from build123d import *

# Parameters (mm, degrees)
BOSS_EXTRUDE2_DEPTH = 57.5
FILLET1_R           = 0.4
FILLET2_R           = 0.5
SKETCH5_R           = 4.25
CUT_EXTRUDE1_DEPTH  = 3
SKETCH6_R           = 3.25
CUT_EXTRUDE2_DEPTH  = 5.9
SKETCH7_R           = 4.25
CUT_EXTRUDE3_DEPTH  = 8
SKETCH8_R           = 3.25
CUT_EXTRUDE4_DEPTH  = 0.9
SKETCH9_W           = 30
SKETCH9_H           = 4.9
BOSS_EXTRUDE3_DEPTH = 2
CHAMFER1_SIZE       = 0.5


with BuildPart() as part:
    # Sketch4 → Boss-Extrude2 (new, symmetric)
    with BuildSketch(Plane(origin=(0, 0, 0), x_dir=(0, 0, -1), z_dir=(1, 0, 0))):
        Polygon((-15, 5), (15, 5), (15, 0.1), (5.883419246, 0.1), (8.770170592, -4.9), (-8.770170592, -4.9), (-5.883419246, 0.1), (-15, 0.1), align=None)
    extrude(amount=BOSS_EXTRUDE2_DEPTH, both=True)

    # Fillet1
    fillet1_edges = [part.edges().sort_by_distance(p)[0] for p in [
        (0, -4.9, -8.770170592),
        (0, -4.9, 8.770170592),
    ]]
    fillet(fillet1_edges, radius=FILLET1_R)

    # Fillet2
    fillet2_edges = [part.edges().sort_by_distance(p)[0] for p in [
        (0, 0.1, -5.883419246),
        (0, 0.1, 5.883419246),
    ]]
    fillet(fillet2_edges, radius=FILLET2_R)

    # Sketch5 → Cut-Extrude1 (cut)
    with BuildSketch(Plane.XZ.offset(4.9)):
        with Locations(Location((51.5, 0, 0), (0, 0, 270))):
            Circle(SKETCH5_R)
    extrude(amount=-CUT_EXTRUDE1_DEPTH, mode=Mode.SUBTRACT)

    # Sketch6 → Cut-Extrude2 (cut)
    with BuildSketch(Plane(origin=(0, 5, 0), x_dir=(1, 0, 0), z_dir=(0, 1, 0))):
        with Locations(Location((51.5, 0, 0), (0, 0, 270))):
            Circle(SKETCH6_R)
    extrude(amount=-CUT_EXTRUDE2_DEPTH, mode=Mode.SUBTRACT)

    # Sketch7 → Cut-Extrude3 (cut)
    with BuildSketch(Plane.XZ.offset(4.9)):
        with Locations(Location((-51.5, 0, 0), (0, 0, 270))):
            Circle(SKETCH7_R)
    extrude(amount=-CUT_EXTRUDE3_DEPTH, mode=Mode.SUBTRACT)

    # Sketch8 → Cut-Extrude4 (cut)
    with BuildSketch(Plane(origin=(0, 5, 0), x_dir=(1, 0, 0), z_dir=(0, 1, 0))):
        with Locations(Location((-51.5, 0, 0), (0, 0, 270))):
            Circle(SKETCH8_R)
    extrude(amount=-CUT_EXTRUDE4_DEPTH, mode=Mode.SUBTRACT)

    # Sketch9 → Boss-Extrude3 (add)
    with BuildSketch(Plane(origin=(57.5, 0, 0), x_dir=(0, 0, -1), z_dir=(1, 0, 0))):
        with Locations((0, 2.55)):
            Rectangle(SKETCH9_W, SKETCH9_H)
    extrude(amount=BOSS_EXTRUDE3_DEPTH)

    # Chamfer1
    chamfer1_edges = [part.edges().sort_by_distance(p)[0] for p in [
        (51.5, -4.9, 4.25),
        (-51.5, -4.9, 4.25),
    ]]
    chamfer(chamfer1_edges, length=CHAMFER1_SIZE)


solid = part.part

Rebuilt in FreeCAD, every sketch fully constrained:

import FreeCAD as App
import Part
import Sketcher
from FreeCAD import Vector
Q = App.Units.Quantity


def edges_at(feature, points):
    """Names of the edges that pass closest to the given points."""
    edges = feature.Shape.Edges
    near = lambda p: min(range(len(edges)), key=lambda i: edges[i].distToShape(Part.Vertex(*p))[0])
    return sorted({f"Edge{near(p) + 1}" for p in points})


def add_polygon(sketch, points):
    """Adds a closed chain of lines whose ends are joined by coincident constraints."""
    first, n = sketch.GeometryCount, len(points)
    for a, b in zip(points, points[1:] + points[:1]):
        sketch.addGeometry(Part.LineSegment(App.Vector(*a, 0), App.Vector(*b, 0)), False)
    for i in range(n):
        sketch.addConstraint(Sketcher.Constraint("Coincident", first + i, 2, first + (i + 1) % n, 1))

doc = App.newDocument("Part")
body = doc.addObject("PartDesign::Body", "Body")

sketch1 = body.newObject("Sketcher::SketchObject", "Sketch")
sketch1.AttachmentSupport = (doc.getObject("YZ_Plane"), [""])
sketch1.MapMode = "FlatFace"
add_polygon(sketch1, [(5, -15), (5, 15), (0.1, 15), (0.1, 5.9), (-4.9, 8.8), (-4.9, -8.8), (0.1, -5.9), (0.1, -15)])
sketch1.addConstraint(Sketcher.Constraint("Vertical", 0))
sketch1.addConstraint(Sketcher.Constraint("Horizontal", 1))
sketch1.addConstraint(Sketcher.Constraint("Vertical", 2))
sketch1.addConstraint(Sketcher.Constraint("Vertical", 4))
sketch1.addConstraint(Sketcher.Constraint("Vertical", 6))
sketch1.addConstraint(Sketcher.Constraint("Horizontal", 7))
sketch1.addConstraint(Sketcher.Constraint("Symmetric", 2, 2, 5, 2, -1))
sketch1.addConstraint(Sketcher.Constraint("Equal", 2, 6))
sketch1.addConstraint(Sketcher.Constraint("Equal", 3, 5))
sketch1.addConstraint(Sketcher.Constraint("DistanceY", 0, 1, 0, 2, Q("30 mm")))
sketch1.addConstraint(Sketcher.Constraint("Angle", 3, Q("150 deg")))
sketch1.addConstraint(Sketcher.Constraint("DistanceX", 1, 2, 1, 1, Q("4.9 mm")))
sketch1.addConstraint(Sketcher.Constraint("DistanceX", -1, 1, 0, 2, Q("5 mm")))
sketch1.addConstraint(Sketcher.Constraint("DistanceX", 3, 2, 2, 2, Q("5 mm")))
sketch1.addConstraint(Sketcher.Constraint("DistanceY", 2, 2, 2, 1, Q("9.116581 mm")))
pad1 = body.newObject("PartDesign::Pad", "Pad")
pad1.Profile = sketch1
pad1.Length = 115
pad1.Midplane = True
doc.recompute()

fillet = body.newObject("PartDesign::Fillet", "Fillet")
fillet.Base = (pad1, edges_at(pad1, [(0, -4.9, -8.77), (0, -4.9, 8.77)]))
fillet.Radius = 0.4
doc.recompute()

fillet2 = body.newObject("PartDesign::Fillet", "Fillet001")
fillet2.Base = (fillet, edges_at(fillet, [(0, 0.1, -5.883), (0, 0.1, 5.883)]))
fillet2.Radius = 0.5

sketch2 = body.newObject("Sketcher::SketchObject", "Sketch001")
sketch2.AttachmentSupport = (doc.getObject("XZ_Plane"), [""])
sketch2.MapMode = "FlatFace"
sketch2.AttachmentOffset = App.Placement(Vector(0, 0, 4.9), App.Rotation())
sketch2.addGeometry(Part.Circle(Vector(51.5, 0, 0), Vector(0, 0, 1), 4.2), False)
sketch2.addConstraint(Sketcher.Constraint("PointOnObject", 0, 3, -1))
sketch2.addConstraint(Sketcher.Constraint("Diameter", 0, Q("8.5 mm")))
sketch2.addConstraint(Sketcher.Constraint("DistanceX", -1, 1, 0, 3, Q("51.5 mm")))
pocket1 = body.newObject("PartDesign::Pocket", "Pocket")
pocket1.Profile = sketch2
pocket1.Length = 3

sketch3 = body.newObject("Sketcher::SketchObject", "Sketch002")
sketch3.AttachmentSupport = (doc.getObject("XZ_Plane"), [""])
sketch3.MapMode = "FlatFace"
sketch3.AttachmentOffset = App.Placement(Vector(0, 0, -5), App.Rotation())
sketch3.addGeometry(Part.Circle(Vector(51.5, 0, 0), Vector(0, 0, 1), 3.2), False)
sketch3.addConstraint(Sketcher.Constraint("PointOnObject", 0, 3, -1))
sketch3.addConstraint(Sketcher.Constraint("Diameter", 0, Q("6.5 mm")))
sketch3.addConstraint(Sketcher.Constraint("DistanceX", -1, 1, 0, 3, Q("51.5 mm")))
pocket2 = body.newObject("PartDesign::Pocket", "Pocket001")
pocket2.Profile = sketch3
pocket2.Length = 5.9
pocket2.Reversed = True

sketch4 = body.newObject("Sketcher::SketchObject", "Sketch003")
sketch4.AttachmentSupport = (doc.getObject("XZ_Plane"), [""])
sketch4.MapMode = "FlatFace"
sketch4.AttachmentOffset = App.Placement(Vector(0, 0, 4.9), App.Rotation())
sketch4.addGeometry(Part.Circle(Vector(-51.5, 0, 0), Vector(0, 0, 1), 4.2), False)
sketch4.addConstraint(Sketcher.Constraint("PointOnObject", 0, 3, -1))
sketch4.addConstraint(Sketcher.Constraint("Diameter", 0, Q("8.5 mm")))
sketch4.addConstraint(Sketcher.Constraint("DistanceX", 0, 3, -1, 1, Q("51.5 mm")))
pocket3 = body.newObject("PartDesign::Pocket", "Pocket002")
pocket3.Profile = sketch4
pocket3.Length = 8

sketch5 = body.newObject("Sketcher::SketchObject", "Sketch004")
sketch5.AttachmentSupport = (doc.getObject("XZ_Plane"), [""])
sketch5.MapMode = "FlatFace"
sketch5.AttachmentOffset = App.Placement(Vector(0, 0, -5), App.Rotation())
sketch5.addGeometry(Part.Circle(Vector(-51.5, 0, 0), Vector(0, 0, 1), 3.2), False)
sketch5.addConstraint(Sketcher.Constraint("PointOnObject", 0, 3, -1))
sketch5.addConstraint(Sketcher.Constraint("Diameter", 0, Q("6.5 mm")))
sketch5.addConstraint(Sketcher.Constraint("DistanceX", 0, 3, -1, 1, Q("51.5 mm")))
pocket4 = body.newObject("PartDesign::Pocket", "Pocket003")
pocket4.Profile = sketch5
pocket4.Length = 0.9
pocket4.Reversed = True

sketch6 = body.newObject("Sketcher::SketchObject", "Sketch005")
sketch6.AttachmentSupport = (doc.getObject("YZ_Plane"), [""])
sketch6.MapMode = "FlatFace"
sketch6.AttachmentOffset = App.Placement(Vector(0, 0, 57.5), App.Rotation())
add_polygon(sketch6, [(5, 15), (0.1, 15), (0.1, -15), (5, -15)])
sketch6.addConstraint(Sketcher.Constraint("Horizontal", 0))
sketch6.addConstraint(Sketcher.Constraint("Vertical", 1))
sketch6.addConstraint(Sketcher.Constraint("Horizontal", 2))
sketch6.addConstraint(Sketcher.Constraint("Vertical", 3))
sketch6.addConstraint(Sketcher.Constraint("DistanceY", 1, 2, 1, 1, Q("30 mm")))
sketch6.addConstraint(Sketcher.Constraint("DistanceX", 0, 2, 0, 1, Q("4.9 mm")))
sketch6.addConstraint(Sketcher.Constraint("DistanceY", -1, 1, 0, 2, Q("15 mm")))
sketch6.addConstraint(Sketcher.Constraint("DistanceX", -1, 1, 2, 2, Q("5 mm")))
pad2 = body.newObject("PartDesign::Pad", "Pad001")
pad2.Profile = sketch6
pad2.Length = 2
doc.recompute()

chamfer = body.newObject("PartDesign::Chamfer", "Chamfer")
chamfer.Base = (pad2, edges_at(pad2, [(51.5, -4.9, 4.25), (-51.5, -4.9, 4.25)]))
chamfer.Size = 0.5

doc.recompute()
